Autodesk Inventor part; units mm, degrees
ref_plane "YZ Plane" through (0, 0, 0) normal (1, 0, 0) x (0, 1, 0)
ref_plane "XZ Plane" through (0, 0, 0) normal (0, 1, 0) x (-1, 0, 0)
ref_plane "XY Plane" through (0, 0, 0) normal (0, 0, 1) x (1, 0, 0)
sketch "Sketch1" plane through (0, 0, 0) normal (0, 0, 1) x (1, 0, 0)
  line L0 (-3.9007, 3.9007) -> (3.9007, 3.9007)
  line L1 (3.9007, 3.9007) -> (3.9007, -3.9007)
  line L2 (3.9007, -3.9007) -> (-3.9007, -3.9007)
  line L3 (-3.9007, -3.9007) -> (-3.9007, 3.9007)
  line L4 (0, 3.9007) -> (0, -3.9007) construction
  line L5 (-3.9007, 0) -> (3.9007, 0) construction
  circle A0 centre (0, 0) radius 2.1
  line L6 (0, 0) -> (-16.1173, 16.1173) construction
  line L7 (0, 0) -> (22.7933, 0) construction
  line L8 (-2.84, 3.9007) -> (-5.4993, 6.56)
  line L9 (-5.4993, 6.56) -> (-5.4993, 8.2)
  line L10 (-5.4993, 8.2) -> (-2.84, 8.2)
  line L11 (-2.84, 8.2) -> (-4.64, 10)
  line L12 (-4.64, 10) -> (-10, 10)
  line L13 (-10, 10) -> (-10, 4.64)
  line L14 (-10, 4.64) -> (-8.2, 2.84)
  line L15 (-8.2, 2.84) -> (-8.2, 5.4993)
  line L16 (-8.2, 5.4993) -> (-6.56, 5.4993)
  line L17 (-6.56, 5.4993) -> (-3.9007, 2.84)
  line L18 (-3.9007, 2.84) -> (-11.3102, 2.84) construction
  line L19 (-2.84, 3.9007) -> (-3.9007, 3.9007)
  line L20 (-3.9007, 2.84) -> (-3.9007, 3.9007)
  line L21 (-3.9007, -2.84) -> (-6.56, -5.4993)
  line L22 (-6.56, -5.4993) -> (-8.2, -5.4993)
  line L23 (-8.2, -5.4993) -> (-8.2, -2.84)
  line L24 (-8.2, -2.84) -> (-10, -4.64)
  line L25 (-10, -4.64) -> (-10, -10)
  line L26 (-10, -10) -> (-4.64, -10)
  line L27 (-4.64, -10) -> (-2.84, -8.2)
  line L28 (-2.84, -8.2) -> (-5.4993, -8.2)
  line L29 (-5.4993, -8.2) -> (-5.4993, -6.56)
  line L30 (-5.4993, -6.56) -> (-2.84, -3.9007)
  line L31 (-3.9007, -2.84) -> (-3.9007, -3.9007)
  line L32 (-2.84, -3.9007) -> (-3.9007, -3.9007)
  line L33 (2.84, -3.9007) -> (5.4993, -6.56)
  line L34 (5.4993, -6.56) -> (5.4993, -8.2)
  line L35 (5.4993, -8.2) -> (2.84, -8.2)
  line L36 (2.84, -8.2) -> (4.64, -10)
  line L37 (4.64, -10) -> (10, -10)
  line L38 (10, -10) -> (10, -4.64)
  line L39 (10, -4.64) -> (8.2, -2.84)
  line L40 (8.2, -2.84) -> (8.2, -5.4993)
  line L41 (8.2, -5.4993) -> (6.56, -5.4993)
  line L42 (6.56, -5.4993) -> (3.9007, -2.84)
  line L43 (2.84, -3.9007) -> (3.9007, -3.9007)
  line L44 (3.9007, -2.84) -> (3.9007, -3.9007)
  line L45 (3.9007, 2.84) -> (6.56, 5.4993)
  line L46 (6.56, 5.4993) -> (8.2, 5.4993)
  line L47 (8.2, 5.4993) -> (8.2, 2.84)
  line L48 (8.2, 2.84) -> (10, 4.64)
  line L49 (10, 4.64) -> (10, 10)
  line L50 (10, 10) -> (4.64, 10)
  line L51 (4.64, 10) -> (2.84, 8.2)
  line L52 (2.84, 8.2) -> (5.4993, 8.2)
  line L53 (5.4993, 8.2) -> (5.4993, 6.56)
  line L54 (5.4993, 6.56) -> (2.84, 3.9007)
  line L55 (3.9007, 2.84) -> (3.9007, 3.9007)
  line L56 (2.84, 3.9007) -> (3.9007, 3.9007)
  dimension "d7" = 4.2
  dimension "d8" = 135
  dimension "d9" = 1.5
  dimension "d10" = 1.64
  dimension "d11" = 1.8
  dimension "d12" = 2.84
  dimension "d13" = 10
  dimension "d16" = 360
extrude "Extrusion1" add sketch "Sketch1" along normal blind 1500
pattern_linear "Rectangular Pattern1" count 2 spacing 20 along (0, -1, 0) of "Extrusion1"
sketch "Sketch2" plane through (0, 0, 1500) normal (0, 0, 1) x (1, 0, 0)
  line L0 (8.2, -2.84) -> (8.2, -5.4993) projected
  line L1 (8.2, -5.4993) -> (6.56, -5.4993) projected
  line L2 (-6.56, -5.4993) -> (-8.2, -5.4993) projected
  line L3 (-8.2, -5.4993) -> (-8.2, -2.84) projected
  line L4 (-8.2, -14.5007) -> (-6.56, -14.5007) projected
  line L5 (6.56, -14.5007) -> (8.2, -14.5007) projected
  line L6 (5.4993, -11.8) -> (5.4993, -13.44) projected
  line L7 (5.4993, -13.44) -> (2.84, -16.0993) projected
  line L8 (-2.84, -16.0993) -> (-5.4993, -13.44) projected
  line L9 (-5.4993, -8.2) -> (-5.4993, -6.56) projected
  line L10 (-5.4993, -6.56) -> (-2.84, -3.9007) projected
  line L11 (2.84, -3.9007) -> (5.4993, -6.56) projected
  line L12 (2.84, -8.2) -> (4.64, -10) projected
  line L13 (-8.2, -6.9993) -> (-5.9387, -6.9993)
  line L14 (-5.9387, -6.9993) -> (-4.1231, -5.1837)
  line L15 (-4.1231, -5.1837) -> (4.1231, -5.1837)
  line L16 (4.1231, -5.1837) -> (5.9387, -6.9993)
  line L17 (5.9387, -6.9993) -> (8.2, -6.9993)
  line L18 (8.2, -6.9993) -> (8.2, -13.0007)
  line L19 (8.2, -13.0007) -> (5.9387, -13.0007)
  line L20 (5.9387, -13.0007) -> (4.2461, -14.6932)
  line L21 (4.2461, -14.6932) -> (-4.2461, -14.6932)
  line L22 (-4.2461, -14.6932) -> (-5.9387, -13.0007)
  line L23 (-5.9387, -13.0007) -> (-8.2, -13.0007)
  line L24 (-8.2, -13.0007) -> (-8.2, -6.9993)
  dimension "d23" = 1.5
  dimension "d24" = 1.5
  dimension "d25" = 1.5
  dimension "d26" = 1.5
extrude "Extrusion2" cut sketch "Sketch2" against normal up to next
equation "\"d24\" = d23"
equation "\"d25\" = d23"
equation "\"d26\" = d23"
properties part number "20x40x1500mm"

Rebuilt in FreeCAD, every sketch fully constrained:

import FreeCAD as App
import Part
import Sketcher
from FreeCAD import Vector

doc = App.newDocument("Part")
body = doc.addObject("PartDesign::Body", "Body")

# Sketch on XY plane
sketch1 = body.newObject("Sketcher::SketchObject", "Sketch")
sketch1.AttachmentSupport = (doc.getObject("XY_Plane"), [""])
sketch1.MapMode = "FlatFace"
sketch1.addGeometry(Part.LineSegment(Vector(-6.56, 5.4993, 0), Vector(-3.9007, 2.84, 0)), False)
sketch1.addGeometry(Part.LineSegment(Vector(-3.9007, 2.84, 0), Vector(-3.9007, -2.84, 0)), False)
sketch1.addGeometry(Part.LineSegment(Vector(-3.9007, -2.84, 0), Vector(-6.56, -5.4993, 0)), False)
sketch1.addGeometry(Part.LineSegment(Vector(-6.56, -5.4993, 0), Vector(-8.2, -5.4993, 0)), False)
sketch1.addGeometry(Part.LineSegment(Vector(-8.2, -5.4993, 0), Vector(-8.2, -2.84, 0)), False)
sketch1.addGeometry(Part.LineSegment(Vector(-8.2, -2.84, 0), Vector(-10, -4.64, 0)), False)
sketch1.addGeometry(Part.LineSegment(Vector(-10, -4.64, 0), Vector(-10, -10, 0)), False)
sketch1.addGeometry(Part.LineSegment(Vector(-10, -10, 0), Vector(-4.64, -10, 0)), False)
sketch1.addGeometry(Part.LineSegment(Vector(-4.64, -10, 0), Vector(-2.84, -8.2, 0)), False)
sketch1.addGeometry(Part.LineSegment(Vector(-2.84, -8.2, 0), Vector(-5.4993, -8.2, 0)), False)
sketch1.addGeometry(Part.LineSegment(Vector(-5.4993, -8.2, 0), Vector(-5.4993, -6.56, 0)), False)
sketch1.addGeometry(Part.LineSegment(Vector(-5.4993, -6.56, 0), Vector(-2.84, -3.9007, 0)), False)
sketch1.addGeometry(Part.LineSegment(Vector(-2.84, -3.9007, 0), Vector(2.84, -3.9007, 0)), False)
sketch1.addGeometry(Part.LineSegment(Vector(2.84, -3.9007, 0), Vector(5.4993, -6.56, 0)), False)
sketch1.addGeometry(Part.LineSegment(Vector(5.4993, -6.56, 0), Vector(5.4993, -8.2, 0)), False)
sketch1.addGeometry(Part.LineSegment(Vector(5.4993, -8.2, 0), Vector(2.84, -8.2, 0)), False)
sketch1.addGeometry(Part.LineSegment(Vector(2.84, -8.2, 0), Vector(4.64, -10, 0)), False)
sketch1.addGeometry(Part.LineSegment(Vector(4.64, -10, 0), Vector(10, -10, 0)), False)
sketch1.addGeometry(Part.LineSegment(Vector(10, -10, 0), Vector(10, -4.64, 0)), False)
sketch1.addGeometry(Part.LineSegment(Vector(10, -4.64, 0), Vector(8.2, -2.84, 0)), False)
sketch1.addGeometry(Part.LineSegment(Vector(8.2, -2.84, 0), Vector(8.2, -5.4993, 0)), False)
sketch1.addGeometry(Part.LineSegment(Vector(8.2, -5.4993, 0), Vector(6.56, -5.4993, 0)), False)
sketch1.addGeometry(Part.LineSegment(Vector(6.56, -5.4993, 0), Vector(3.9007, -2.84, 0)), False)
sketch1.addGeometry(Part.LineSegment(Vector(3.9007, -2.84, 0), Vector(3.9007, 2.84, 0)), False)
sketch1.addGeometry(Part.LineSegment(Vector(3.9007, 2.84, 0), Vector(6.56, 5.4993, 0)), False)
sketch1.addGeometry(Part.LineSegment(Vector(6.56, 5.4993, 0), Vector(8.2, 5.4993, 0)), False)
sketch1.addGeometry(Part.LineSegment(Vector(8.2, 5.4993, 0), Vector(8.2, 2.84, 0)), False)
sketch1.addGeometry(Part.LineSegment(Vector(8.2, 2.84, 0), Vector(10, 4.64, 0)), False)
sketch1.addGeometry(Part.LineSegment(Vector(10, 4.64, 0), Vector(10, 10, 0)), False)
sketch1.addGeometry(Part.LineSegment(Vector(10, 10, 0), Vector(4.64, 10, 0)), False)
sketch1.addGeometry(Part.LineSegment(Vector(4.64, 10, 0), Vector(2.84, 8.2, 0)), False)
sketch1.addGeometry(Part.LineSegment(Vector(2.84, 8.2, 0), Vector(5.4993, 8.2, 0)), False)
sketch1.addGeometry(Part.LineSegment(Vector(5.4993, 8.2, 0), Vector(5.4993, 6.56, 0)), False)
sketch1.addGeometry(Part.LineSegment(Vector(5.4993, 6.56, 0), Vector(2.84, 3.9007, 0)), False)
sketch1.addGeometry(Part.LineSegment(Vector(2.84, 3.9007, 0), Vector(-2.84, 3.9007, 0)), False)
sketch1.addGeometry(Part.LineSegment(Vector(-2.84, 3.9007, 0), Vector(-5.4993, 6.56, 0)), False)
sketch1.addGeometry(Part.LineSegment(Vector(-5.4993, 6.56, 0), Vector(-5.4993, 8.2, 0)), False)
sketch1.addGeometry(Part.LineSegment(Vector(-5.4993, 8.2, 0), Vector(-2.84, 8.2, 0)), False)
sketch1.addGeometry(Part.LineSegment(Vector(-2.84, 8.2, 0), Vector(-4.64, 10, 0)), False)
sketch1.addGeometry(Part.LineSegment(Vector(-4.64, 10, 0), Vector(-10, 10, 0)), False)
sketch1.addGeometry(Part.LineSegment(Vector(-10, 10, 0), Vector(-10, 4.64, 0)), False)
sketch1.addGeometry(Part.LineSegment(Vector(-10, 4.64, 0), Vector(-8.2, 2.84, 0)), False)
sketch1.addGeometry(Part.LineSegment(Vector(-8.2, 2.84, 0), Vector(-8.2, 5.4993, 0)), False)
sketch1.addGeometry(Part.LineSegment(Vector(-8.2, 5.4993, 0), Vector(-6.56, 5.4993, 0)), False)
sketch1.addGeometry(Part.Circle(Vector(0, 0, 0), Vector(0, 0, 1), 2.1), False)
sketch1.addConstraint(Sketcher.Constraint("Coincident", 0, 2, 1, 1))
sketch1.addConstraint(Sketcher.Constraint("Coincident", 1, 2, 2, 1))
sketch1.addConstraint(Sketcher.Constraint("Coincident", 2, 2, 3, 1))
sketch1.addConstraint(Sketcher.Constraint("Coincident", 3, 2, 4, 1))
sketch1.addConstraint(Sketcher.Constraint("Coincident", 4, 2, 5, 1))
sketch1.addConstraint(Sketcher.Constraint("Coincident", 5, 2, 6, 1))
sketch1.addConstraint(Sketcher.Constraint("Coincident", 6, 2, 7, 1))
sketch1.addConstraint(Sketcher.Constraint("Coincident", 7, 2, 8, 1))
sketch1.addConstraint(Sketcher.Constraint("Coincident", 8, 2, 9, 1))
sketch1.addConstraint(Sketcher.Constraint("Coincident", 9, 2, 10, 1))
sketch1.addConstraint(Sketcher.Constraint("Coincident", 10, 2, 11, 1))
sketch1.addConstraint(Sketcher.Constraint("Coincident", 11, 2, 12, 1))
sketch1.addConstraint(Sketcher.Constraint("Coincident", 12, 2, 13, 1))
sketch1.addConstraint(Sketcher.Constraint("Coincident", 13, 2, 14, 1))
sketch1.addConstraint(Sketcher.Constraint("Coincident", 14, 2, 15, 1))
sketch1.addConstraint(Sketcher.Constraint("Coincident", 15, 2, 16, 1))
sketch1.addConstraint(Sketcher.Constraint("Coincident", 16, 2, 17, 1))
sketch1.addConstraint(Sketcher.Constraint("Coincident", 17, 2, 18, 1))
sketch1.addConstraint(Sketcher.Constraint("Coincident", 18, 2, 19, 1))
sketch1.addConstraint(Sketcher.Constraint("Coincident", 19, 2, 20, 1))
sketch1.addConstraint(Sketcher.Constraint("Coincident", 20, 2, 21, 1))
sketch1.addConstraint(Sketcher.Constraint("Coincident", 21, 2, 22, 1))
sketch1.addConstraint(Sketcher.Constraint("Coincident", 22, 2, 23, 1))
sketch1.addConstraint(Sketcher.Constraint("Coincident", 23, 2, 24, 1))
sketch1.addConstraint(Sketcher.Constraint("Coincident", 24, 2, 25, 1))
sketch1.addConstraint(Sketcher.Constraint("Coincident", 25, 2, 26, 1))
sketch1.addConstraint(Sketcher.Constraint("Coincident", 26, 2, 27, 1))
sketch1.addConstraint(Sketcher.Constraint("Coincident", 27, 2, 28, 1))
sketch1.addConstraint(Sketcher.Constraint("Coincident", 28, 2, 29, 1))
sketch1.addConstraint(Sketcher.Constraint("Coincident", 29, 2, 30, 1))
sketch1.addConstraint(Sketcher.Constraint("Coincident", 30, 2, 31, 1))
sketch1.addConstraint(Sketcher.Constraint("Coincident", 31, 2, 32, 1))
sketch1.addConstraint(Sketcher.Constraint("Coincident", 32, 2, 33, 1))
sketch1.addConstraint(Sketcher.Constraint("Coincident", 33, 2, 34, 1))
sketch1.addConstraint(Sketcher.Constraint("Coincident", 34, 2, 35, 1))
sketch1.addConstraint(Sketcher.Constraint("Coincident", 35, 2, 36, 1))
sketch1.addConstraint(Sketcher.Constraint("Coincident", 36, 2, 37, 1))
sketch1.addConstraint(Sketcher.Constraint("Coincident", 37, 2, 38, 1))
sketch1.addConstraint(Sketcher.Constraint("Coincident", 38, 2, 39, 1))
sketch1.addConstraint(Sketcher.Constraint("Coincident", 39, 2, 40, 1))
sketch1.addConstraint(Sketcher.Constraint("Coincident", 40, 2, 41, 1))
sketch1.addConstraint(Sketcher.Constraint("Coincident", 41, 2, 42, 1))
sketch1.addConstraint(Sketcher.Constraint("Coincident", 42, 2, 43, 1))
sketch1.addConstraint(Sketcher.Constraint("Coincident", 43, 2, 0, 1))
sketch1.addConstraint(Sketcher.Constraint("Vertical", 1))
sketch1.addConstraint(Sketcher.Constraint("Horizontal", 3))
sketch1.addConstraint(Sketcher.Constraint("Vertical", 4))
sketch1.addConstraint(Sketcher.Constraint("Vertical", 6))
sketch1.addConstraint(Sketcher.Constraint("Horizontal", 7))
sketch1.addConstraint(Sketcher.Constraint("Horizontal", 9))
sketch1.addConstraint(Sketcher.Constraint("Vertical", 10))
sketch1.addConstraint(Sketcher.Constraint("Horizontal", 12))
sketch1.addConstraint(Sketcher.Constraint("Vertical", 14))
sketch1.addConstraint(Sketcher.Constraint("Horizontal", 15))
sketch1.addConstraint(Sketcher.Constraint("Horizontal", 17))
sketch1.addConstraint(Sketcher.Constraint("Vertical", 18))
sketch1.addConstraint(Sketcher.Constraint("Vertical", 20))
sketch1.addConstraint(Sketcher.Constraint("Horizontal", 21))
sketch1.addConstraint(Sketcher.Constraint("Vertical", 23))
sketch1.addConstraint(Sketcher.Constraint("Horizontal", 25))
sketch1.addConstraint(Sketcher.Constraint("Vertical", 26))
sketch1.addConstraint(Sketcher.Constraint("Vertical", 28))
sketch1.addConstraint(Sketcher.Constraint("Horizontal", 29))
sketch1.addConstraint(Sketcher.Constraint("Horizontal", 31))
sketch1.addConstraint(Sketcher.Constraint("Vertical", 32))
sketch1.addConstraint(Sketcher.Constraint("Horizontal", 34))
sketch1.addConstraint(Sketcher.Constraint("Vertical", 36))
sketch1.addConstraint(Sketcher.Constraint("Horizontal", 37))
sketch1.addConstraint(Sketcher.Constraint("Horizontal", 39))
sketch1.addConstraint(Sketcher.Constraint("Vertical", 40))
sketch1.addConstraint(Sketcher.Constraint("Vertical", 42))
sketch1.addConstraint(Sketcher.Constraint("Horizontal", 43))
sketch1.addConstraint(Sketcher.Constraint("Coincident", 44, 3, -1, 1))
sketch1.addConstraint(Sketcher.Constraint("Symmetric", 0, 2, 22, 2, -1, 1))
sketch1.addConstraint(Sketcher.Constraint("Symmetric", 2, 2, 24, 2, -1, 1))
sketch1.addConstraint(Sketcher.Constraint("Symmetric", 4, 2, 26, 2, -1, 1))
sketch1.addConstraint(Sketcher.Constraint("Symmetric", 5, 2, 27, 2, -1, 1))
sketch1.addConstraint(Sketcher.Constraint("Symmetric", 7, 2, 29, 2, -1, 1))
sketch1.addConstraint(Sketcher.Constraint("Symmetric", 8, 2, 30, 2, -1, 1))
sketch1.addConstraint(Sketcher.Constraint("Symmetric", 10, 2, 32, 2, -1, 1))
sketch1.addConstraint(Sketcher.Constraint("Symmetric", 11, 2, 33, 2, -1, 1))
sketch1.addConstraint(Sketcher.Constraint("Symmetric", 13, 2, 35, 2, -1, 1))
sketch1.addConstraint(Sketcher.Constraint("Symmetric", 15, 2, 37, 2, -1, 1))
sketch1.addConstraint(Sketcher.Constraint("Symmetric", 16, 2, 38, 2, -1, 1))
sketch1.addConstraint(Sketcher.Constraint("Symmetric", 18, 2, 40, 2, -1, 1))
sketch1.addConstraint(Sketcher.Constraint("Symmetric", 19, 2, 41, 2, -1, 1))
sketch1.addConstraint(Sketcher.Constraint("Symmetric", 21, 2, 43, 2, -1, 1))
sketch1.addConstraint(Sketcher.Constraint("Symmetric", 10, 2, 13, 2, -2))
sketch1.addConstraint(Sketcher.Constraint("Symmetric", 8, 2, 15, 2, -2))
sketch1.addConstraint(Sketcher.Constraint("Symmetric", 7, 2, 16, 2, -2))
sketch1.addConstraint(Sketcher.Constraint("Symmetric", 5, 2, 18, 2, -2))
sketch1.addConstraint(Sketcher.Constraint("Symmetric", 4, 2, 19, 2, -2))
sketch1.addConstraint(Sketcher.Constraint("Symmetric", 2, 2, 21, 2, -2))
sketch1.addConstraint(Sketcher.Constraint("Perpendicular", 0, 2))
sketch1.addConstraint(Sketcher.Constraint("Parallel", 2, 5))
sketch1.addConstraint(Sketcher.Constraint("Parallel", 5, 8))
sketch1.addConstraint(Sketcher.Constraint("Parallel", 8, 11))
sketch1.addConstraint(Sketcher.Constraint("Perpendicular", 11, 13))
sketch1.addConstraint(Sketcher.Constraint("Parallel", 13, 16))
sketch1.addConstraint(Sketcher.Constraint("Perpendicular", 22, 24))
sketch1.addConstraint(Sketcher.Constraint("Perpendicular", 33, 35))
sketch1.addConstraint(Sketcher.Constraint("Horizontal", 1, 2, 4, 2))
sketch1.addConstraint(Sketcher.Constraint("Vertical", 8, 2, 11, 2))
sketch1.addConstraint(Sketcher.Constraint("Equal", 34, 1))
sketch1.addConstraint(Sketcher.Constraint("Equal", 37, 4))
sketch1.addConstraint(Sketcher.Constraint("Equal", 39, 6))
sketch1.addConstraint(Sketcher.Constraint("Equal", 43, 10))
sketch1.addConstraint(Sketcher.Constraint("Equal", 5, 8))
sketch1.addConstraint(Sketcher.Constraint("Diameter", 44, 4.2))
sketch1.addConstraint(Sketcher.Constraint("DistanceX", 5, 2, -1, 1, 10.0))
sketch1.addConstraint(Sketcher.Constraint("DistanceX", 3, 2, 3, 1, 1.64))
sketch1.addConstraint(Sketcher.Constraint("DistanceX", 5, 2, 3, 2, 1.8))
sketch1.addConstraint(Sketcher.Constraint("DistanceY", -1, 1, 0, 2, 2.84))
sketch1.addConstraint(Sketcher.Constraint("DistanceX", 9, 2, 9, 1, 2.6593))
pad1 = body.newObject("PartDesign::Pad", "Pad")
pad1.Profile = sketch1
pad1.Length = 1500
doc.recompute()

linearpattern = body.newObject("PartDesign::LinearPattern", "LinearPattern")
linearpattern.Originals = [pad1]
linearpattern.Direction = (doc.getObject("Y_Axis"), [""])
linearpattern.Mode = "offset"
linearpattern.Offset = 20
linearpattern.Occurrences = 2
linearpattern.Reversed = True
body.Tip = linearpattern

# Sketch on XY plane
sketch2 = body.newObject("Sketcher::SketchObject", "Sketch001")
sketch2.AttachmentSupport = (doc.getObject("XY_Plane"), [""])
sketch2.MapMode = "FlatFace"
sketch2.AttachmentOffset = App.Placement(Vector(0, 0, 1500), App.Rotation())
sketch2.addGeometry(Part.LineSegment(Vector(4.2461, -14.6932, 0), Vector(5.4993, -13.44, 0)), False)
sketch2.addGeometry(Part.LineSegment(Vector(5.499337, -13.440037, 0), Vector(5.9387, -13.0007, 0)), False)
sketch2.addGeometry(Part.LineSegment(Vector(5.9387, -13.0007, 0), Vector(8.2, -13.0007, 0)), False)
sketch2.addGeometry(Part.LineSegment(Vector(8.2, -13.0007, 0), Vector(8.2, -6.9993, 0)), False)
sketch2.addGeometry(Part.LineSegment(Vector(8.2, -6.9993, 0), Vector(5.9387, -6.9993, 0)), False)
sketch2.addGeometry(Part.LineSegment(Vector(5.9387, -6.9993, 0), Vector(5.49935, -6.55995, 0)), False)
sketch2.addGeometry(Part.LineSegment(Vector(5.4993, -6.56, 0), Vector(4.12305, -5.18375, 0)), False)
sketch2.addGeometry(Part.LineSegment(Vector(4.1231, -5.1837, 0), Vector(-4.1231, -5.1837, 0)), False)
sketch2.addGeometry(Part.LineSegment(Vector(-4.12305, -5.18375, 0), Vector(-5.4993, -6.56, 0)), False)
sketch2.addGeometry(Part.LineSegment(Vector(-5.49935, -6.55995, 0), Vector(-5.9387, -6.9993, 0)), False)
sketch2.addGeometry(Part.LineSegment(Vector(-5.9387, -6.9993, 0), Vector(-8.2, -6.9993, 0)), False)
sketch2.addGeometry(Part.LineSegment(Vector(-8.2, -6.9993, 0), Vector(-8.2, -13.0007, 0)), False)
sketch2.addGeometry(Part.LineSegment(Vector(-8.2, -13.0007, 0), Vector(-5.9387, -13.0007, 0)), False)
sketch2.addGeometry(Part.LineSegment(Vector(-5.9387, -13.0007, 0), Vector(-5.499337, -13.440037, 0)), False)
sketch2.addGeometry(Part.LineSegment(Vector(-5.4993, -13.44, 0), Vector(-4.2461, -14.6932, 0)), False)
sketch2.addGeometry(Part.LineSegment(Vector(-4.2461, -14.6932, 0), Vector(4.2461, -14.6932, 0)), False)
sketch2.addConstraint(Sketcher.Constraint("Coincident", 0, 2, 1, 1))
sketch2.addConstraint(Sketcher.Constraint("Coincident", 1, 2, 2, 1))
sketch2.addConstraint(Sketcher.Constraint("Coincident", 2, 2, 3, 1))
sketch2.addConstraint(Sketcher.Constraint("Coincident", 3, 2, 4, 1))
sketch2.addConstraint(Sketcher.Constraint("Coincident", 4, 2, 5, 1))
sketch2.addConstraint(Sketcher.Constraint("Coincident", 5, 2, 6, 1))
sketch2.addConstraint(Sketcher.Constraint("Coincident", 6, 2, 7, 1))
sketch2.addConstraint(Sketcher.Constraint("Coincident", 7, 2, 8, 1))
sketch2.addConstraint(Sketcher.Constraint("Coincident", 8, 2, 9, 1))
sketch2.addConstraint(Sketcher.Constraint("Coincident", 9, 2, 10, 1))
sketch2.addConstraint(Sketcher.Constraint("Coincident", 10, 2, 11, 1))
sketch2.addConstraint(Sketcher.Constraint("Coincident", 11, 2, 12, 1))
sketch2.addConstraint(Sketcher.Constraint("Coincident", 12, 2, 13, 1))
sketch2.addConstraint(Sketcher.Constraint("Coincident", 13, 2, 14, 1))
sketch2.addConstraint(Sketcher.Constraint("Coincident", 14, 2, 15, 1))
sketch2.addConstraint(Sketcher.Constraint("Coincident", 15, 2, 0, 1))
sketch2.addConstraint(Sketcher.Constraint("Horizontal", 2))
sketch2.addConstraint(Sketcher.Constraint("Vertical", 3))
sketch2.addConstraint(Sketcher.Constraint("Horizontal", 4))
sketch2.addConstraint(Sketcher.Constraint("Horizontal", 7))
sketch2.addConstraint(Sketcher.Constraint("Horizontal", 10))
sketch2.addConstraint(Sketcher.Constraint("Vertical", 11))
sketch2.addConstraint(Sketcher.Constraint("Horizontal", 12))
sketch2.addConstraint(Sketcher.Constraint("Horizontal", 15))
sketch2.addConstraint(Sketcher.Constraint("Symmetric", 5, 2, 8, 2, -2))
sketch2.addConstraint(Sketcher.Constraint("Symmetric", 4, 2, 9, 2, -2))
sketch2.addConstraint(Sketcher.Constraint("Symmetric", 2, 2, 11, 2, -2))
sketch2.addConstraint(Sketcher.Constraint("Symmetric", 0, 2, 13, 2, -2))
sketch2.addConstraint(Sketcher.Constraint("Parallel", 0, 1))
sketch2.addConstraint(Sketcher.Constraint("Perpendicular", 1, 5))
sketch2.addConstraint(Sketcher.Constraint("Parallel", 5, 6))
sketch2.addConstraint(Sketcher.Constraint("Perpendicular", 6, 8))
sketch2.addConstraint(Sketcher.Constraint("Parallel", 8, 9))
sketch2.addConstraint(Sketcher.Constraint("Perpendicular", 9, 13))
sketch2.addConstraint(Sketcher.Constraint("Parallel", 13, 14))
sketch2.addConstraint(Sketcher.Constraint("Vertical", 1, 2, 4, 2))
sketch2.addConstraint(Sketcher.Constraint("Vertical", 0, 2, 5, 2))
sketch2.addConstraint(Sketcher.Constraint("DistanceX", -1, 1, 2, 2, 8.2))
sketch2.addConstraint(Sketcher.Constraint("DistanceY", 0, 2, -1, 1, 13.44))
sketch2.addConstraint(Sketcher.Constraint("DistanceY", 5, 2, -1, 1, 6.56))
sketch2.addConstraint(Sketcher.Constraint("DistanceX", 2, 1, 2, 2, 2.2613))
sketch2.addConstraint(Sketcher.Constraint("DistanceX", 7, 2, 7, 1, 8.2462))
sketch2.addConstraint(Sketcher.Constraint("DistanceX", 15, 1, 15, 2, 8.4922))
sketch2.addConstraint(Sketcher.Constraint("DistanceY", 3, 1, 3, 2, 6.0014))
pocket1 = body.newObject("PartDesign::Pocket", "Pocket")
pocket1.Profile = sketch2
pocket1.Length = 1500

doc.recompute()
